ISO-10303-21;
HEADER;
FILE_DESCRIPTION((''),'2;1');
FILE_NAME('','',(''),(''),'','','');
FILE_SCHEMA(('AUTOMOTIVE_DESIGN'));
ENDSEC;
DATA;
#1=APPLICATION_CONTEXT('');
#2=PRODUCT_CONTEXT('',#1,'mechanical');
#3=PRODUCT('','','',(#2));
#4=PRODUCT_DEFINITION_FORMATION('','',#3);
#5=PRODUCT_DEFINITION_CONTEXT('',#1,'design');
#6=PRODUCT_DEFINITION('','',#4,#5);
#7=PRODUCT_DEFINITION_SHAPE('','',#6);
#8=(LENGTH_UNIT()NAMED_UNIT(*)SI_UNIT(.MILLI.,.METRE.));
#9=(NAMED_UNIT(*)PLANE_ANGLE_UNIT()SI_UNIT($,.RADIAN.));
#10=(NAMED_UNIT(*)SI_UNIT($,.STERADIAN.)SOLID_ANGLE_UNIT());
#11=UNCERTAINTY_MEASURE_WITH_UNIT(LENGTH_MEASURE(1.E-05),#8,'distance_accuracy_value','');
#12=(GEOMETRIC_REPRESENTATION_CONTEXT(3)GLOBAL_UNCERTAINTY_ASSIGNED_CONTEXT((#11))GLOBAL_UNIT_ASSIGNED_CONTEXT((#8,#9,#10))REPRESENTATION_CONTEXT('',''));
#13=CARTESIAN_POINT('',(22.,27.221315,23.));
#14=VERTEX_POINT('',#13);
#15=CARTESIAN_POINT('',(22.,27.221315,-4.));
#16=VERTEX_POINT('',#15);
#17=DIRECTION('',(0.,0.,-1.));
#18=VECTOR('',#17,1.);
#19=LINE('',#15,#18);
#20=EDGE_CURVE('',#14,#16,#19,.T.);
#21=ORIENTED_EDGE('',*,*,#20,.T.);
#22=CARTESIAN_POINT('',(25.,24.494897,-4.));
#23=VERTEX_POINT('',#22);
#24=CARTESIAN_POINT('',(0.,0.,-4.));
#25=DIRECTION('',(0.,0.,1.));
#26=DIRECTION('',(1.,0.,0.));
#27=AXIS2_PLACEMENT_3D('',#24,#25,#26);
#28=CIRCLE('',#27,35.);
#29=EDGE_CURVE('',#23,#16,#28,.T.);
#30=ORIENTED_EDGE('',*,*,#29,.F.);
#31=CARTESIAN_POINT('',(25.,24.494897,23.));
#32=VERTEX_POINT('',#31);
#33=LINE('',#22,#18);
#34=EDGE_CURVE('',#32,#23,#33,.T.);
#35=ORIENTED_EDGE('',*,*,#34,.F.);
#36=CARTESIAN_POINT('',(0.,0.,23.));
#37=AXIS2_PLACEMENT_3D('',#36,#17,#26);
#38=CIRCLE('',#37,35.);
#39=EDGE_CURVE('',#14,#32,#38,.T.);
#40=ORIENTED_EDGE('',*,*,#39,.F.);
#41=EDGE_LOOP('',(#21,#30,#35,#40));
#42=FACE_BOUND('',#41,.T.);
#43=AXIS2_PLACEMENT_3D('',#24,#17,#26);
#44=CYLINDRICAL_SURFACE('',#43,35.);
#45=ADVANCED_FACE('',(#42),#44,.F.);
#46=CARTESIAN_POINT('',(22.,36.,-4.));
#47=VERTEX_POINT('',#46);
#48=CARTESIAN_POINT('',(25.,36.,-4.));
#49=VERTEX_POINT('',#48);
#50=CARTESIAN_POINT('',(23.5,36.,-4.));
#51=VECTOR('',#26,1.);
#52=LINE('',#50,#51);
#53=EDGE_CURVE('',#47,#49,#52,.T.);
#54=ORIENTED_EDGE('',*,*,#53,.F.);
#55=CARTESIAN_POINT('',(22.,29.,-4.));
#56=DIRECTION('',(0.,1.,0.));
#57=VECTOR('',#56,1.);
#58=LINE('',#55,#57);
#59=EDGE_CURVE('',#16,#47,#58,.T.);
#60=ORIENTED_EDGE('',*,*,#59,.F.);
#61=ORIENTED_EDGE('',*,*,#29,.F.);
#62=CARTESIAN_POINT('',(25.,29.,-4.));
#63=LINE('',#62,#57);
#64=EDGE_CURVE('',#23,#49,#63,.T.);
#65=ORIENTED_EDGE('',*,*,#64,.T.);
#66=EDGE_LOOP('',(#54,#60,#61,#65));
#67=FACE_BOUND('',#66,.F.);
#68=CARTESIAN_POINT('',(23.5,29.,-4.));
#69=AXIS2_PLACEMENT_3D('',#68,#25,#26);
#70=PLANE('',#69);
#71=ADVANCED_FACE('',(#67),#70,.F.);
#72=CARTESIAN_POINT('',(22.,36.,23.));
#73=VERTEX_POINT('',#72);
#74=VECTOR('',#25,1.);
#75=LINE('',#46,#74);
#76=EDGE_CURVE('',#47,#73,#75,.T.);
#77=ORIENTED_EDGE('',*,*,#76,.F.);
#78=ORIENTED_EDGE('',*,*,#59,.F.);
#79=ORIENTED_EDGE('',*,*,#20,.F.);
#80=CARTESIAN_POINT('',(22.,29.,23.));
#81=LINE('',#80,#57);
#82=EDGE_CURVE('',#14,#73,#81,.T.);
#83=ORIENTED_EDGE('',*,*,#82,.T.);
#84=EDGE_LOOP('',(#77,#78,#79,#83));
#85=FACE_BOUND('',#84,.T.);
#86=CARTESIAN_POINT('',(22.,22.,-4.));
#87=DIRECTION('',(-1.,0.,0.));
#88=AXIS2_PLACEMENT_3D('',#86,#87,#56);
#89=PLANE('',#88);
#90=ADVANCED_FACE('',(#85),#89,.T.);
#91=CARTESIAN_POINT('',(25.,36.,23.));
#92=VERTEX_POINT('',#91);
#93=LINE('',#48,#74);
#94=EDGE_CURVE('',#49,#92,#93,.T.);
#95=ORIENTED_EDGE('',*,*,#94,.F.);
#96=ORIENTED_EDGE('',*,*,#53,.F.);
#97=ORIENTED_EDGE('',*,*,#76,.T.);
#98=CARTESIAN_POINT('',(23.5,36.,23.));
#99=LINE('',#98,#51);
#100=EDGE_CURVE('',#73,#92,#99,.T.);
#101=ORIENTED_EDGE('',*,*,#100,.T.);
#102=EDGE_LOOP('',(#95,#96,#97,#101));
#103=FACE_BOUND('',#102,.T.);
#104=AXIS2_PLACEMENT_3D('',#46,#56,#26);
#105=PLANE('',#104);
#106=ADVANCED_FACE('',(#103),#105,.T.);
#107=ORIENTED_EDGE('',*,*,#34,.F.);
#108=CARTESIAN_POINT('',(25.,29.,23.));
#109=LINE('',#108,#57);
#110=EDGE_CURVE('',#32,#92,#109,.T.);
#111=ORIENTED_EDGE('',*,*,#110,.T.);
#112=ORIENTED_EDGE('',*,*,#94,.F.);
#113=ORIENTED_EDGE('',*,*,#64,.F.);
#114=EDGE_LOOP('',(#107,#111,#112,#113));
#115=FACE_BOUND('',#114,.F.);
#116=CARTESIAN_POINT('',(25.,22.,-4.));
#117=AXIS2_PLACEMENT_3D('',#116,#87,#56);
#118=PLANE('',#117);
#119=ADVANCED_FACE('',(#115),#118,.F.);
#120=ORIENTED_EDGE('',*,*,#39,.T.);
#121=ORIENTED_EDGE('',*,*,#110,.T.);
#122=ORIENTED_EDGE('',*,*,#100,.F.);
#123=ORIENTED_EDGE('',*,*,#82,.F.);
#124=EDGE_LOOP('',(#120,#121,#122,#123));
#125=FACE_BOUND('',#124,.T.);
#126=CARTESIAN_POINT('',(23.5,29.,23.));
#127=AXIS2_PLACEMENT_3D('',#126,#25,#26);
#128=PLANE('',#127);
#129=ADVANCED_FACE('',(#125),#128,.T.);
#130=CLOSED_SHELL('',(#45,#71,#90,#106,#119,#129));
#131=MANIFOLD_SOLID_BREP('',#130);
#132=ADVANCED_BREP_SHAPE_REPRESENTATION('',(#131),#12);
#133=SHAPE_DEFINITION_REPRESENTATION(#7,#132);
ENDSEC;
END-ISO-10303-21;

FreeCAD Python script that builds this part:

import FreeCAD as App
import Part
import Sketcher
Q = App.Units.Quantity


def add_polygon(sketch, points):
    """Adds a closed chain of lines whose ends are joined by coincident constraints."""
    first, n = sketch.GeometryCount, len(points)
    for a, b in zip(points, points[1:] + points[:1]):
        sketch.addGeometry(Part.LineSegment(App.Vector(*a, 0), App.Vector(*b, 0)), False)
    for i in range(n):
        sketch.addConstraint(Sketcher.Constraint("Coincident", first + i, 2, first + (i + 1) % n, 1))

doc = App.newDocument("Part")
params = doc.addObject("Spreadsheet::Sheet", "Params")
for row, (alias, value) in enumerate([
    ("sketch1_diameter", "70 mm"),
    ("pad1_length", "32 mm"),
    ("sketch2_width", "3 mm"),
    ("sketch2_height", "14 mm"),
    ("pad2_length", "27 mm"),
], start=1):
    params.set(f"A{row}", alias)
    params.set(f"B{row}", "=" + value)
    params.setAlias(f"B{row}", alias)

body = doc.addObject("PartDesign::Body", "Body")

sketch1 = body.newObject("Sketcher::SketchObject", "Sketch")
sketch1.AttachmentSupport = (doc.getObject("XY_Plane"), [""])
sketch1.MapMode = "FlatFace"
sketch1.AttachmentOffset = App.Placement(App.Vector(0, 0, -4), App.Rotation())
sketch1.addGeometry(Part.Circle(App.Vector(0, 0, 0), App.Vector(0, 0, 1), 35), False)
sketch1.addConstraint(Sketcher.Constraint("Coincident", 0, 3, -1, 1))
sketch1.addConstraint(Sketcher.Constraint("Diameter", 0, Q("70 mm")))
sketch1.setExpression("Constraints[1]", "Params.sketch1_diameter")
pad1 = body.newObject("PartDesign::Pad", "Pad")
pad1.Profile = sketch1
pad1.setExpression("Length", "Params.pad1_length")
body2 = doc.addObject("PartDesign::Body", "Body001")

sketch2 = body2.newObject("Sketcher::SketchObject", "Sketch001")
sketch2.AttachmentSupport = (doc.getObject("XY_Plane001"), [""])
sketch2.MapMode = "FlatFace"
sketch2.AttachmentOffset = App.Placement(App.Vector(0, 0, -4), App.Rotation())
add_polygon(sketch2, [(22, 36), (22, 22), (25, 22), (25, 36)])
sketch2.addConstraint(Sketcher.Constraint("Vertical", 0))
sketch2.addConstraint(Sketcher.Constraint("Horizontal", 1))
sketch2.addConstraint(Sketcher.Constraint("Vertical", 2))
sketch2.addConstraint(Sketcher.Constraint("Horizontal", 3))
sketch2.addConstraint(Sketcher.Constraint("DistanceX", 1, 1, 1, 2, Q("3 mm")))
sketch2.addConstraint(Sketcher.Constraint("DistanceY", 0, 2, 0, 1, Q("14 mm")))
sketch2.addConstraint(Sketcher.Constraint("DistanceX", -1, 1, 0, 2, Q("22 mm")))
sketch2.addConstraint(Sketcher.Constraint("DistanceY", -1, 1, 0, 2, Q("22 mm")))
sketch2.setExpression("Constraints[8]", "Params.sketch2_width")
sketch2.setExpression("Constraints[9]", "Params.sketch2_height")
pad2 = body2.newObject("PartDesign::Pad", "Pad001")
pad2.Profile = sketch2
pad2.setExpression("Length", "Params.pad2_length")
doc.recompute()

boolean = body2.newObject("PartDesign::Boolean", "Boolean")
boolean.Type = "Cut"
boolean.addObjects([body])

doc.recompute()
